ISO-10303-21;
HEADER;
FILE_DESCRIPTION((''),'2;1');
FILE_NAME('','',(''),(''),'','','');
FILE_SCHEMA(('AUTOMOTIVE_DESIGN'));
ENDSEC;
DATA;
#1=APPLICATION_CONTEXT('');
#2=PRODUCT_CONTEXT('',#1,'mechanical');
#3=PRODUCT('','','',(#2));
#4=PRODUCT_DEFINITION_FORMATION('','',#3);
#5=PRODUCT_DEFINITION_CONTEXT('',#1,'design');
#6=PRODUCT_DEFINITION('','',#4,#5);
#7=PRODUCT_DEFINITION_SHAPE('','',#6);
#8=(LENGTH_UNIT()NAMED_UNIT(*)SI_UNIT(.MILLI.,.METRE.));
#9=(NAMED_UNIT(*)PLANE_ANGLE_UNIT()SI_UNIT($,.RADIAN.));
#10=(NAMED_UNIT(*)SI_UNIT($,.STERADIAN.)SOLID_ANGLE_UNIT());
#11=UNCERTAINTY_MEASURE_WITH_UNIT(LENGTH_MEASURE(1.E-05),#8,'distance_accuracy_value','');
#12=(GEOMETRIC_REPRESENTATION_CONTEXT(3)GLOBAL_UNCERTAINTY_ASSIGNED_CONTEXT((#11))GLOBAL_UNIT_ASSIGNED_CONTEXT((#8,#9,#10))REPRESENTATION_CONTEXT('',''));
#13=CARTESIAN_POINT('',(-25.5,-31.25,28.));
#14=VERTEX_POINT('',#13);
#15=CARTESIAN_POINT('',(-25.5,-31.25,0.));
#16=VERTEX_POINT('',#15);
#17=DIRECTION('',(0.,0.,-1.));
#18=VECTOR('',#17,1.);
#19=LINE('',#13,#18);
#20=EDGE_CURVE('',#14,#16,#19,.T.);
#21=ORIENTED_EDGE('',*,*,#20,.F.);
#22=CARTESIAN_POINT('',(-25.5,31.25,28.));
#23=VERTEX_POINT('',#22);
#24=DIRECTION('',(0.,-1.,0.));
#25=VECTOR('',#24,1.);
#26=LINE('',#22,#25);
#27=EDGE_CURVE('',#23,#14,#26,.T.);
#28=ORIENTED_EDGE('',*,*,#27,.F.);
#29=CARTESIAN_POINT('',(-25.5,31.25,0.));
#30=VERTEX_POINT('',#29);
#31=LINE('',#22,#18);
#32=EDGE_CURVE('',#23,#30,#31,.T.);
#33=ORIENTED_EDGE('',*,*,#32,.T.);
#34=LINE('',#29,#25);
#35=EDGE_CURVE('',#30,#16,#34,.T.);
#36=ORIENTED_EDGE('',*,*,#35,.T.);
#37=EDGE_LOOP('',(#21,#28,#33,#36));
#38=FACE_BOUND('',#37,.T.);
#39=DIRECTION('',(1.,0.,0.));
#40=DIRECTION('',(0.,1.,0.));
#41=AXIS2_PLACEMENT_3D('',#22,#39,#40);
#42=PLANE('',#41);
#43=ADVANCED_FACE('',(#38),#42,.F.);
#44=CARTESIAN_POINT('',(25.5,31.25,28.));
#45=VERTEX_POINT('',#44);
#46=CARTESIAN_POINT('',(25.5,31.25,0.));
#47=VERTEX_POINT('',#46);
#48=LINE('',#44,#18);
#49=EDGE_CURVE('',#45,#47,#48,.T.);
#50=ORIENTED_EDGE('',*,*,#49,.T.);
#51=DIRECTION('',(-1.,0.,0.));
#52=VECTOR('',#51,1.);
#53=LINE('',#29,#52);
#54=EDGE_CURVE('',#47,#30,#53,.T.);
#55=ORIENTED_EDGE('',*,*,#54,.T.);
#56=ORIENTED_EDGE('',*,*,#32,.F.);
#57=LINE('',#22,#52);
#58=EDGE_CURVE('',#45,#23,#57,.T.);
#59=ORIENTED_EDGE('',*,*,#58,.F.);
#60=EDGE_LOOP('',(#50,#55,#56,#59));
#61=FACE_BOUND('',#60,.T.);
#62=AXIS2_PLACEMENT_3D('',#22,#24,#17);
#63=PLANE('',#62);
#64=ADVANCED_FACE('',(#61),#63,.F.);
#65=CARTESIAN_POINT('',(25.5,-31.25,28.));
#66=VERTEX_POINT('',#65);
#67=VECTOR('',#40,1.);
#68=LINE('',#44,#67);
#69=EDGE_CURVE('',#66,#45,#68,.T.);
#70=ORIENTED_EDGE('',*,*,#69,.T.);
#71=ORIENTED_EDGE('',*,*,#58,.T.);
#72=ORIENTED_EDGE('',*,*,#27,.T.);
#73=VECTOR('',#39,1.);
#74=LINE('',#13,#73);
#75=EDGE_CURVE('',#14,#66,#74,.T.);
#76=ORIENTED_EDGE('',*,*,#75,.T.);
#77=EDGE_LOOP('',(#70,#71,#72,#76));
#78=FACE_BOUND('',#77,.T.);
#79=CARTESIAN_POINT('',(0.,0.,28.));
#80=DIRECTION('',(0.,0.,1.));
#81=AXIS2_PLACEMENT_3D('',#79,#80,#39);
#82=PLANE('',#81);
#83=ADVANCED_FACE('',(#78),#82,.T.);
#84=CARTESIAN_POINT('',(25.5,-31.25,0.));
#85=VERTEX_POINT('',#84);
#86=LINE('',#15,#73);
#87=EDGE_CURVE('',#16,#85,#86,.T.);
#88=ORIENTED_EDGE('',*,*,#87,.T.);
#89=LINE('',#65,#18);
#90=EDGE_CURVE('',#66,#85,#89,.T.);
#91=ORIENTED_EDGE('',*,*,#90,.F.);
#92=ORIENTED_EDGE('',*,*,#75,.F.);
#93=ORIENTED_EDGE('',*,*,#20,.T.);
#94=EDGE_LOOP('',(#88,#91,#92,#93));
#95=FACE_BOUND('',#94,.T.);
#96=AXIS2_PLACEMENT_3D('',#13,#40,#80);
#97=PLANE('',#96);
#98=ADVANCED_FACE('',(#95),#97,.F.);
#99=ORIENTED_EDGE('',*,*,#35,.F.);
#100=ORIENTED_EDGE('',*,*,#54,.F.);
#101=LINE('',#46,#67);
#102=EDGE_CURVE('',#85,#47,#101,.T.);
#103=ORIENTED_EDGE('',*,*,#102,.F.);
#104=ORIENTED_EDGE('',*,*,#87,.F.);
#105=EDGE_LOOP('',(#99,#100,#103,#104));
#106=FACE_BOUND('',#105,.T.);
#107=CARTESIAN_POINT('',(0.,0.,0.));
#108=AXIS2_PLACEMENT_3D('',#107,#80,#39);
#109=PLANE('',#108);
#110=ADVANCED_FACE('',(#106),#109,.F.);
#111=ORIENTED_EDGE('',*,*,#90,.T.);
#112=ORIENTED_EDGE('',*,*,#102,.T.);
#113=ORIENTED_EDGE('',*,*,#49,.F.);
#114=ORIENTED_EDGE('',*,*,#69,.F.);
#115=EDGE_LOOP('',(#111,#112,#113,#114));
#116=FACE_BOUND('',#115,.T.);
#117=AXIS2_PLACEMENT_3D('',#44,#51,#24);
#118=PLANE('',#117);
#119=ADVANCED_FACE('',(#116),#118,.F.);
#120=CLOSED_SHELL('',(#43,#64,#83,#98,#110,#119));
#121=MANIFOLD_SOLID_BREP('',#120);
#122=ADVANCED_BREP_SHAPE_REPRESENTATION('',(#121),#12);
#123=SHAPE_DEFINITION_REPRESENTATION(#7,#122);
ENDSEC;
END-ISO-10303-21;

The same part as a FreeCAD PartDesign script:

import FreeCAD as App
import Part
import Sketcher
from FreeCAD import Vector
Q = App.Units.Quantity


def add_polygon(sketch, points):
    """Adds a closed chain of lines whose ends are joined by coincident constraints."""
    first, n = sketch.GeometryCount, len(points)
    for a, b in zip(points, points[1:] + points[:1]):
        sketch.addGeometry(Part.LineSegment(App.Vector(*a, 0), App.Vector(*b, 0)), False)
    for i in range(n):
        sketch.addConstraint(Sketcher.Constraint("Coincident", first + i, 2, first + (i + 1) % n, 1))

doc = App.newDocument("Part")
body = doc.addObject("PartDesign::Body", "Body")

# Sketch on XY plane
sketch1 = body.newObject("Sketcher::SketchObject", "Sketch")
sketch1.AttachmentSupport = (doc.getObject("XY_Plane"), [""])
sketch1.MapMode = "FlatFace"
add_polygon(sketch1, [(-26, 31), (-26, -31), (26, -31), (26, 31)])  # lines 0-3
sketch1.addConstraint([
    Sketcher.Constraint("Vertical", 0),
    Sketcher.Constraint("Horizontal", 1),
    Sketcher.Constraint("Vertical", 2),
    Sketcher.Constraint("Horizontal", 3),
    Sketcher.Constraint("Symmetric", 0, 2, 2, 2, -1, 1),
    Sketcher.Constraint("DistanceX", 1, 1, 1, 2, Q("51 mm")),
    Sketcher.Constraint("DistanceY", 0, 2, 0, 1, Q("62.5 mm")),
])
pad1 = body.newObject("PartDesign::Pad", "Pad")
pad1.Profile = sketch1
pad1.Length = 28

doc.recompute()
